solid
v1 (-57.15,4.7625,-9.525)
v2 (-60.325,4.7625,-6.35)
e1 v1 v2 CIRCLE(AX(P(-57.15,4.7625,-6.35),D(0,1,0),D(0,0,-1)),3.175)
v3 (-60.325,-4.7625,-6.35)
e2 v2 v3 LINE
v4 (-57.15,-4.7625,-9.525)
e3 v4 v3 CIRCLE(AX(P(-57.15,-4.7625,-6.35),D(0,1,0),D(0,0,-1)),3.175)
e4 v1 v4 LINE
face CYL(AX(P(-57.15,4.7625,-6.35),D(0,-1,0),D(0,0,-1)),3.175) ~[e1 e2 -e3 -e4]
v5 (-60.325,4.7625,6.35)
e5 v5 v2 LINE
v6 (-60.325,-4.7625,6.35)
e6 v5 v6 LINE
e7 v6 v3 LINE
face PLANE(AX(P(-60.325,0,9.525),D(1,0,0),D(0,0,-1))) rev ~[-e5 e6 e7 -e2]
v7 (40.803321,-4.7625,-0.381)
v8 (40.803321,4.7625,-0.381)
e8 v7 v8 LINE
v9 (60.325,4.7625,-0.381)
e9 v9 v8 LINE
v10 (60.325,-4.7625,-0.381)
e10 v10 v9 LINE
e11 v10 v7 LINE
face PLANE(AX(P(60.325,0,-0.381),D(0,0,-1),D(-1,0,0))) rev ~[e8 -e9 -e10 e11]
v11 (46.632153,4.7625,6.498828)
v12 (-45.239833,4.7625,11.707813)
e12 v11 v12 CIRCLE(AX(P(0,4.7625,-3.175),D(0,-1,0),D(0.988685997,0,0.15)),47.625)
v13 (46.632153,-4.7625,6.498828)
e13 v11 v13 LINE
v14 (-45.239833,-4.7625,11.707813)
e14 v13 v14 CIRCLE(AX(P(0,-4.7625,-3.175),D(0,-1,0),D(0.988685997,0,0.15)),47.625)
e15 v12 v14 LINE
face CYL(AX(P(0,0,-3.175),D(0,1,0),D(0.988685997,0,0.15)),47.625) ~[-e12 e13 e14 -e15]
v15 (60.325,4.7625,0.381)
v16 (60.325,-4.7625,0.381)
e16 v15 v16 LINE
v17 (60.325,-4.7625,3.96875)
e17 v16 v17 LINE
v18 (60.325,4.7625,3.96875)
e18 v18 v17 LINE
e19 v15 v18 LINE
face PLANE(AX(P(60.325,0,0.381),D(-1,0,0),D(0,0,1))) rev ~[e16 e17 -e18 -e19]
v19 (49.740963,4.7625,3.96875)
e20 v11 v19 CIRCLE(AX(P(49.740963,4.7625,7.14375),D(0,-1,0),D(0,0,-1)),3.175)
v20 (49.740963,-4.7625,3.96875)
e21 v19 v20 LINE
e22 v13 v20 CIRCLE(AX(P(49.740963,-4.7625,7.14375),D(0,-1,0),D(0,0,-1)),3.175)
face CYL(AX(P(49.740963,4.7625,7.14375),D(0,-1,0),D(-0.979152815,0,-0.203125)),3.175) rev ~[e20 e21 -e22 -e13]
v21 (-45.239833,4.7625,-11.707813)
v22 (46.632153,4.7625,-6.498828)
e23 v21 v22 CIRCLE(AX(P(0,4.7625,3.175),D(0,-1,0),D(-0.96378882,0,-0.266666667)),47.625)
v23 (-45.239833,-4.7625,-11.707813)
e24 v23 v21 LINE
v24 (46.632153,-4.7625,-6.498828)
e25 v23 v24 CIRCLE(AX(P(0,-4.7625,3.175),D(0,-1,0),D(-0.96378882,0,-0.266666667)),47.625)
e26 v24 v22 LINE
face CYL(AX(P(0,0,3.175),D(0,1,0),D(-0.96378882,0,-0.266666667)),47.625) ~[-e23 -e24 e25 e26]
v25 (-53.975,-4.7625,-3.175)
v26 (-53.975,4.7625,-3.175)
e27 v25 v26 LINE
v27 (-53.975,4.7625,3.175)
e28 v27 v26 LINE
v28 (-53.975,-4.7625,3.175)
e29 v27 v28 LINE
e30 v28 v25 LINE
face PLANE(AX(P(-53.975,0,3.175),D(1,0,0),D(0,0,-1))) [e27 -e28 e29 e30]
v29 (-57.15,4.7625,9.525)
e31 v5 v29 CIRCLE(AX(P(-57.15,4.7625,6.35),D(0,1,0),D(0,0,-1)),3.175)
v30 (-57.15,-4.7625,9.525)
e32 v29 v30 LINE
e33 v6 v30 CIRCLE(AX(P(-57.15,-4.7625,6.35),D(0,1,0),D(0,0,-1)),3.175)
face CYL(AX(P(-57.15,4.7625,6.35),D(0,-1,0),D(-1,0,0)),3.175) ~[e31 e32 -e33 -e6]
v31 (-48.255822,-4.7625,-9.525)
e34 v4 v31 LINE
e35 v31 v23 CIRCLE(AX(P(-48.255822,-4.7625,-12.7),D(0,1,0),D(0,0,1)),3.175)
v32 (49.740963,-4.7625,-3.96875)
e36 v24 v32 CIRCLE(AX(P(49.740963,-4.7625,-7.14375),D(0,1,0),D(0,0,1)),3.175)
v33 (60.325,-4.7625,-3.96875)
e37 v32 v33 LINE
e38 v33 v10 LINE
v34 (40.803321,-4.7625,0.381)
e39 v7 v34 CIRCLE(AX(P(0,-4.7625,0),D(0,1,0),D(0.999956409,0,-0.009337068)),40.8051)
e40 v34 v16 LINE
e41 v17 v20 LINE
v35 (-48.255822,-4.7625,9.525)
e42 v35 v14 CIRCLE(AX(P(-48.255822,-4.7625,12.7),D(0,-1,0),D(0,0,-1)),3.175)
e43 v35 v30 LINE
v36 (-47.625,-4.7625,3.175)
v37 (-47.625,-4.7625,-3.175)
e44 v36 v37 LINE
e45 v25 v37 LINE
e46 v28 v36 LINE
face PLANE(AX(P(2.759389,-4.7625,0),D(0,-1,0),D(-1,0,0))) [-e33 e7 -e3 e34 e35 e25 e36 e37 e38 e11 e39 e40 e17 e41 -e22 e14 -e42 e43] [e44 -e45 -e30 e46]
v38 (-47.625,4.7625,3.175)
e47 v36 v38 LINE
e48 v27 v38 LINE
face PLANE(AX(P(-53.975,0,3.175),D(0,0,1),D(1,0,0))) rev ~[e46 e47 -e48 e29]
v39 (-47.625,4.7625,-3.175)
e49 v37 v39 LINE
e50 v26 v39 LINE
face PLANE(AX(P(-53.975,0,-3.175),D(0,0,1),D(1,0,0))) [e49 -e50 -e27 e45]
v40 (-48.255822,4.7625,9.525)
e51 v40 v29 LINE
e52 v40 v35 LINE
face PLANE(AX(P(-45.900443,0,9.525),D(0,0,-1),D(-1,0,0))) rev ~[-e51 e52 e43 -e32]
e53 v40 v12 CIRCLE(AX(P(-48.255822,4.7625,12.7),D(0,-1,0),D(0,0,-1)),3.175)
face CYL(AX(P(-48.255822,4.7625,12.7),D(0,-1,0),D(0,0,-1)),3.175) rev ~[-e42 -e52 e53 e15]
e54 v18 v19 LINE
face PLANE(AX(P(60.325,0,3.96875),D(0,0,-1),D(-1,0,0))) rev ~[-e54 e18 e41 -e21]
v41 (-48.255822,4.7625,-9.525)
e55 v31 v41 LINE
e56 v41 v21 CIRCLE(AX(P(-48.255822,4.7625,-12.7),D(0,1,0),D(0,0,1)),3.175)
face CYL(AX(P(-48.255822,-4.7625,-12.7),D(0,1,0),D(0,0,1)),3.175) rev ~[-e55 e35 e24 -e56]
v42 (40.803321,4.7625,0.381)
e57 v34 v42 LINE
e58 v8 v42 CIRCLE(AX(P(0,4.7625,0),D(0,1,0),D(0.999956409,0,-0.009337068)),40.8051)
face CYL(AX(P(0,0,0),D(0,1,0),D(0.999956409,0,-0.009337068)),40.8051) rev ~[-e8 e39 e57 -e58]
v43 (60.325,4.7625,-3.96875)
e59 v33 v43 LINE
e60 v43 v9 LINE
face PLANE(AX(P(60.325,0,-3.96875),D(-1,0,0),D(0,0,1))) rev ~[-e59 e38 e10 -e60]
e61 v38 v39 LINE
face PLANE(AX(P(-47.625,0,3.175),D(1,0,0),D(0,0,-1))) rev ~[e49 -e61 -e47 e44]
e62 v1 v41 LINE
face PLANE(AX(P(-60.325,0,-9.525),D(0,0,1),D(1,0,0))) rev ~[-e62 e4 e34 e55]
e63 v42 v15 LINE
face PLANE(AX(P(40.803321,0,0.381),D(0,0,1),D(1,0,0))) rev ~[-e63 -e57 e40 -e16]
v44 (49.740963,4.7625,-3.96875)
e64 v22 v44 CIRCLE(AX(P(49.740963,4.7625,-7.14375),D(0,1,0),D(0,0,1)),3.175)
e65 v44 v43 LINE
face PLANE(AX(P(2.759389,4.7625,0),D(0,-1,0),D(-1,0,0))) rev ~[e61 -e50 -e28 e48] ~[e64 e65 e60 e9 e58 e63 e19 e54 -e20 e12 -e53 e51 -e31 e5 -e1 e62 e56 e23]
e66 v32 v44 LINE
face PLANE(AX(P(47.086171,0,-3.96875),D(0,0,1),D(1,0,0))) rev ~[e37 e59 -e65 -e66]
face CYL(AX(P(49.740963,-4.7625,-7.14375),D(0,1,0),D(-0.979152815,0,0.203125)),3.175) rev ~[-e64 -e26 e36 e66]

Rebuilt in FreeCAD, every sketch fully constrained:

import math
import FreeCAD as App
import Part
import Sketcher
Q = App.Units.Quantity


def edges_at(feature, points):
    """Names of the edges that pass closest to the given points."""
    edges = feature.Shape.Edges
    near = lambda p: min(range(len(edges)), key=lambda i: edges[i].distToShape(Part.Vertex(*p))[0])
    return sorted({f"Edge{near(p) + 1}" for p in points})

doc = App.newDocument("Part")
body = doc.addObject("PartDesign::Body", "Body")

sketch1 = doc.addObject("Sketcher::SketchObject", "Sketch")
body.addObject(sketch1)
sketch1.AttachmentSupport = (doc.XZ_Plane, [""])
sketch1.MapMode = "FlatFace"
sketch1.addGeometry([
    Part.LineSegment(App.Vector(60.325, 0.381, 0), App.Vector(40.803321, 0.381, 0)),
    Part.ArcOfCircle(Part.Circle(App.Vector(0, 0, 0), App.Vector(0, 0, 1), 40.8051), math.radians(0.534982), math.radians(359.465018)),
    Part.LineSegment(App.Vector(40.803321, -0.381, 0), App.Vector(60.325, -0.381, 0)),
    Part.LineSegment(App.Vector(60.325, -0.381, 0), App.Vector(60.325, -3.96875, 0)),
    Part.LineSegment(App.Vector(60.325, -3.96875, 0), App.Vector(47.086171, -3.96875, 0)),
    Part.ArcOfCircle(Part.Circle(App.Vector(0, 3.175, 0), App.Vector(0, 0, 1), 47.625), math.radians(-164.53399), math.radians(-8.626927)),
    Part.LineSegment(App.Vector(-45.900443, -9.525, 0), App.Vector(-60.325, -9.525, 0)),
    Part.LineSegment(App.Vector(-60.325, -9.525, 0), App.Vector(-60.325, 9.525, 0)),
    Part.LineSegment(App.Vector(-60.325, 9.525, 0), App.Vector(-45.900443, 9.525, 0)),
    Part.ArcOfCircle(Part.Circle(App.Vector(0, -3.175, 0), App.Vector(0, 0, 1), 47.625), math.radians(8.626927), math.radians(164.53399)),
    Part.LineSegment(App.Vector(47.086171, 3.96875, 0), App.Vector(60.325, 3.96875, 0)),
    Part.LineSegment(App.Vector(60.325, 3.96875, 0), App.Vector(60.325, 0.381, 0)),
    Part.LineSegment(App.Vector(-53.975, 3.175, 0), App.Vector(-53.975, -3.175, 0)),
    Part.LineSegment(App.Vector(-53.975, -3.175, 0), App.Vector(-47.625, -3.175, 0)),
    Part.LineSegment(App.Vector(-47.625, -3.175, 0), App.Vector(-47.625, 3.175, 0)),
    Part.LineSegment(App.Vector(-47.625, 3.175, 0), App.Vector(-53.975, 3.175, 0)),
], False)
sketch1.addConstraint([
    Sketcher.Constraint("Coincident", 0, 2, 1, 1),
    Sketcher.Constraint("Coincident", 1, 2, 2, 1),
    Sketcher.Constraint("Coincident", 2, 2, 3, 1),
    Sketcher.Constraint("Coincident", 3, 2, 4, 1),
    Sketcher.Constraint("Coincident", 4, 2, 5, 2),
    Sketcher.Constraint("Coincident", 5, 1, 6, 1),
    Sketcher.Constraint("Coincident", 6, 2, 7, 1),
    Sketcher.Constraint("Coincident", 7, 2, 8, 1),
    Sketcher.Constraint("Coincident", 8, 2, 9, 2),
    Sketcher.Constraint("Coincident", 9, 1, 10, 1),
    Sketcher.Constraint("Coincident", 10, 2, 11, 1),
    Sketcher.Constraint("Coincident", 11, 2, 0, 1),
    Sketcher.Constraint("Coincident", 12, 2, 13, 1),
    Sketcher.Constraint("Coincident", 13, 2, 14, 1),
    Sketcher.Constraint("Coincident", 14, 2, 15, 1),
    Sketcher.Constraint("Coincident", 15, 2, 12, 1),
    Sketcher.Constraint("Horizontal", 0),
    Sketcher.Constraint("Horizontal", 2),
    Sketcher.Constraint("Vertical", 3),
    Sketcher.Constraint("Horizontal", 4),
    Sketcher.Constraint("Horizontal", 6),
    Sketcher.Constraint("Vertical", 7),
    Sketcher.Constraint("Horizontal", 8),
    Sketcher.Constraint("Horizontal", 10),
    Sketcher.Constraint("Vertical", 11),
    Sketcher.Constraint("Vertical", 12),
    Sketcher.Constraint("Horizontal", 13),
    Sketcher.Constraint("Vertical", 14),
    Sketcher.Constraint("Horizontal", 15),
    Sketcher.Constraint("Coincident", 1, 3, -1, 1),
    Sketcher.Constraint("Equal", 5, 9),
    Sketcher.Constraint("Symmetric", 5, 3, 9, 3, -1, 1),
    Sketcher.Constraint("Symmetric", 5, 1, 8, 2, -1),
    Sketcher.Constraint("Symmetric", 3, 2, 10, 2, -1),
    Sketcher.Constraint("Horizontal", 9, 3, 12, 2),
    Sketcher.Constraint("Horizontal", 5, 3, 14, 2),
    Sketcher.Constraint("Vertical", 0, 2, 1, 2),
    Sketcher.Constraint("Equal", 15, 12),
    Sketcher.Constraint("Radius", 5, Q("1.875 in")),
    Sketcher.Constraint("DistanceX", 13, 1, 13, 2, Q("0.25 in")),
    Sketcher.Constraint("DistanceY", 7, 1, 7, 2, Q("0.75 in")),
    Sketcher.Constraint("Radius", 1, Q("1.6065 in")),
    Sketcher.Constraint("DistanceX", 6, 2, 13, 2, Q("0.5 in")),
    Sketcher.Constraint("DistanceY", 0, 2, 5, 3, Q("0.11 in")),
    Sketcher.Constraint("DistanceX", -1, 1, 2, 2, Q("2.375 in")),
    Sketcher.Constraint("DistanceY", 3, 2, -1, 1, Q("0.15625 in")),
    Sketcher.Constraint("DistanceX", 6, 2, -1, 1, Q("2.375 in")),
])
pad1 = doc.addObject("PartDesign::Pad", "Pad")
body.addObject(pad1)
pad1.Profile = sketch1
pad1.Length = Q("0.375 in")
pad1.Midplane = True
doc.recompute()

fillet = doc.addObject("PartDesign::Fillet", "Fillet")
body.addObject(fillet)
fillet.Base = (pad1, edges_at(pad1, [
    (-45.9, 0, 9.525),
    (-60.325, 0, 9.525),
    (-60.325, 0, -9.525),
    (-45.9, 0, -9.525),
    (47.086, 0, -3.969),
    (47.086, 0, 3.969),
]))
fillet.Radius = Q("0.125 in")

doc.recompute()
